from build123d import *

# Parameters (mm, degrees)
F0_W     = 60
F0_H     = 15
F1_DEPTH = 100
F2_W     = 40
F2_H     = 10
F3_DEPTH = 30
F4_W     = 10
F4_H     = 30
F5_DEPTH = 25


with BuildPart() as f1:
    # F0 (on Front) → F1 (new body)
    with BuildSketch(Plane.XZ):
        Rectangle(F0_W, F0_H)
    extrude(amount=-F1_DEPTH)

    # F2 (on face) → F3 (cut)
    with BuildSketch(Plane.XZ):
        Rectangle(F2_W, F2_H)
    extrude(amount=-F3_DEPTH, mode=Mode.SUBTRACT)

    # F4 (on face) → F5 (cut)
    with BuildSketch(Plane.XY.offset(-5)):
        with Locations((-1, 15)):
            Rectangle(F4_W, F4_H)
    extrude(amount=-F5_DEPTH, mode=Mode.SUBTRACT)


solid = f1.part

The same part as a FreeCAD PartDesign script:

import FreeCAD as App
import Part
import Sketcher


def add_polygon(sketch, points):
    """Adds a closed chain of lines whose ends are joined by coincident constraints."""
    first, n = sketch.GeometryCount, len(points)
    for a, b in zip(points, points[1:] + points[:1]):
        sketch.addGeometry(Part.LineSegment(App.Vector(*a, 0), App.Vector(*b, 0)), False)
    for i in range(n):
        sketch.addConstraint(Sketcher.Constraint("Coincident", first + i, 2, first + (i + 1) % n, 1))

doc = App.newDocument("Part")
body = doc.addObject("PartDesign::Body", "Body")

# Sketch on XZ plane
sketch1 = body.newObject("Sketcher::SketchObject", "Sketch")
sketch1.AttachmentSupport = (doc.getObject("XZ_Plane"), [""])
sketch1.MapMode = "FlatFace"
add_polygon(sketch1, [(-30, 8), (-30, -8), (30, -8), (30, 8)])  # lines 0-3
sketch1.addConstraint([
    Sketcher.Constraint("Vertical", 0),
    Sketcher.Constraint("Horizontal", 1),
    Sketcher.Constraint("Vertical", 2),
    Sketcher.Constraint("Horizontal", 3),
    Sketcher.Constraint("Symmetric", 0, 2, 2, 2, -1, 1),
    Sketcher.Constraint("DistanceX", 1, 1, 1, 2, 60.0),
    Sketcher.Constraint("DistanceY", 0, 2, 0, 1, 15.0),
])
pad1 = body.newObject("PartDesign::Pad", "Pad")
pad1.Profile = sketch1
pad1.Length = 100
pad1.Reversed = True

# Sketch on XZ plane
sketch2 = body.newObject("Sketcher::SketchObject", "Sketch001")
sketch2.AttachmentSupport = (doc.getObject("XZ_Plane"), [""])
sketch2.MapMode = "FlatFace"
add_polygon(sketch2, [(-20, 5), (-20, -5), (20, -5), (20, 5)])  # lines 0-3
sketch2.addConstraint([
    Sketcher.Constraint("Vertical", 0),
    Sketcher.Constraint("Horizontal", 1),
    Sketcher.Constraint("Vertical", 2),
    Sketcher.Constraint("Horizontal", 3),
    Sketcher.Constraint("Symmetric", 0, 2, 2, 2, -1, 1),
    Sketcher.Constraint("DistanceX", 1, 1, 1, 2, 40.0),
    Sketcher.Constraint("DistanceY", 0, 2, 0, 1, 10.0),
])
pocket1 = body.newObject("PartDesign::Pocket", "Pocket")
pocket1.Profile = sketch2
pocket1.Length = 30

# Sketch on XY plane
sketch3 = body.newObject("Sketcher::SketchObject", "Sketch002")
sketch3.AttachmentSupport = (doc.getObject("XY_Plane"), [""])
sketch3.MapMode = "FlatFace"
sketch3.AttachmentOffset = App.Placement(App.Vector(0, 0, -5), App.Rotation())
add_polygon(sketch3, [(-6, 30), (-6, 0), (4, 0), (4, 30)])  # lines 0-3
sketch3.addConstraint([
    Sketcher.Constraint("Vertical", 0),
    Sketcher.Constraint("Horizontal", 1),
    Sketcher.Constraint("Vertical", 2),
    Sketcher.Constraint("Horizontal", 3),
    Sketcher.Constraint("PointOnObject", 0, 2, -1),
    Sketcher.Constraint("DistanceX", 1, 1, 1, 2, 10.0),
    Sketcher.Constraint("DistanceY", 0, 2, 0, 1, 30.0),
    Sketcher.Constraint("DistanceX", 0, 2, -1, 1, 6.0),
])
pocket2 = body.newObject("PartDesign::Pocket", "Pocket001")
pocket2.Profile = sketch3
pocket2.Length = 25

doc.recompute()
